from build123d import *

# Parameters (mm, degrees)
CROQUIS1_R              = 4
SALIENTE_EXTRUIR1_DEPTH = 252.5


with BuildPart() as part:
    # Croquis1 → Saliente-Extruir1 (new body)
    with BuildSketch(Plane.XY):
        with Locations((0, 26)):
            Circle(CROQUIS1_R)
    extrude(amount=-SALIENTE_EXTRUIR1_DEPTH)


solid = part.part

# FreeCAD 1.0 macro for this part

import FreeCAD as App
import Part
import Sketcher
from FreeCAD import Vector

doc = App.newDocument("Part")
body = doc.addObject("PartDesign::Body", "Body")

# Sketch on XY plane
sketch1 = body.newObject("Sketcher::SketchObject", "Sketch")
sketch1.AttachmentSupport = (doc.getObject("XY_Plane"), [""])
sketch1.MapMode = "FlatFace"
sketch1.addGeometry(Part.Circle(Vector(0, 26, 0), Vector(0, 0, 1), 4), False)
sketch1.addConstraint([
    Sketcher.Constraint("PointOnObject", 0, 3, -2),
    Sketcher.Constraint("Diameter", 0, 8.0),
    Sketcher.Constraint("DistanceY", -1, 1, 0, 3, 26.0),
])
pad1 = body.newObject("PartDesign::Pad", "Pad")
pad1.Profile = sketch1
pad1.Length = 252.5
pad1.Reversed = True

doc.recompute()
